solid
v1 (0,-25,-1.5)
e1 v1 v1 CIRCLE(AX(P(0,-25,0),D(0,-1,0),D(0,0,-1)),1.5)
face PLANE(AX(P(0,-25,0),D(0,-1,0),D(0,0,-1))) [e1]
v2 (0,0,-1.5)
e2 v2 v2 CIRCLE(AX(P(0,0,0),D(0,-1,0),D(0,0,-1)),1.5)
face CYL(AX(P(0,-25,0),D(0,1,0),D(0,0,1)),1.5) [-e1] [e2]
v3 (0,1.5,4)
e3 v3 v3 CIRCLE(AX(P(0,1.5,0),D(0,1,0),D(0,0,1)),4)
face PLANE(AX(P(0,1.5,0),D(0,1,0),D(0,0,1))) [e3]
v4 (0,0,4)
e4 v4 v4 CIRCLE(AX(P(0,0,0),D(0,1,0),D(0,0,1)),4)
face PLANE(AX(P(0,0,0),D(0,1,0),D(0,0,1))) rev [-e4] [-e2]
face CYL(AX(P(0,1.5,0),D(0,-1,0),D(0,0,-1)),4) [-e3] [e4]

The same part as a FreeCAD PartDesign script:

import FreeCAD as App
import Part
import Sketcher

V = App.Vector
Q = App.Units.Quantity

doc = App.newDocument("Part")
body = doc.addObject("PartDesign::Body", "Body")

sketch1 = body.newObject("Sketcher::SketchObject", "Sketch")
sketch1.AttachmentSupport = (doc.getObject("XZ_Plane"), [""])
sketch1.MapMode = "FlatFace"
sketch1.addGeometry(Part.Circle(V(0, 0, 0), V(0, 0, 1), 4), False)
sketch1.addConstraint([
    Sketcher.Constraint("Coincident", 0, 3, -1, 1),
    Sketcher.Constraint("Diameter", 0, Q("8 mm")),
])
pad1 = body.newObject("PartDesign::Pad", "Pad")
pad1.Profile = sketch1
pad1.Length = 1.5
pad1.Reversed = True

sketch2 = body.newObject("Sketcher::SketchObject", "Sketch001")
sketch2.AttachmentSupport = (doc.getObject("XZ_Plane"), [""])
sketch2.MapMode = "FlatFace"
sketch2.addGeometry(Part.Circle(V(0, 0, 0), V(0, 0, 1), 1.5), False)
sketch2.addConstraint([
    Sketcher.Constraint("Coincident", 0, 3, -1, 1),
    Sketcher.Constraint("Diameter", 0, Q("3 mm")),
])
pad2 = body.newObject("PartDesign::Pad", "Pad001")
pad2.Profile = sketch2
pad2.Length = 25

doc.recompute()
